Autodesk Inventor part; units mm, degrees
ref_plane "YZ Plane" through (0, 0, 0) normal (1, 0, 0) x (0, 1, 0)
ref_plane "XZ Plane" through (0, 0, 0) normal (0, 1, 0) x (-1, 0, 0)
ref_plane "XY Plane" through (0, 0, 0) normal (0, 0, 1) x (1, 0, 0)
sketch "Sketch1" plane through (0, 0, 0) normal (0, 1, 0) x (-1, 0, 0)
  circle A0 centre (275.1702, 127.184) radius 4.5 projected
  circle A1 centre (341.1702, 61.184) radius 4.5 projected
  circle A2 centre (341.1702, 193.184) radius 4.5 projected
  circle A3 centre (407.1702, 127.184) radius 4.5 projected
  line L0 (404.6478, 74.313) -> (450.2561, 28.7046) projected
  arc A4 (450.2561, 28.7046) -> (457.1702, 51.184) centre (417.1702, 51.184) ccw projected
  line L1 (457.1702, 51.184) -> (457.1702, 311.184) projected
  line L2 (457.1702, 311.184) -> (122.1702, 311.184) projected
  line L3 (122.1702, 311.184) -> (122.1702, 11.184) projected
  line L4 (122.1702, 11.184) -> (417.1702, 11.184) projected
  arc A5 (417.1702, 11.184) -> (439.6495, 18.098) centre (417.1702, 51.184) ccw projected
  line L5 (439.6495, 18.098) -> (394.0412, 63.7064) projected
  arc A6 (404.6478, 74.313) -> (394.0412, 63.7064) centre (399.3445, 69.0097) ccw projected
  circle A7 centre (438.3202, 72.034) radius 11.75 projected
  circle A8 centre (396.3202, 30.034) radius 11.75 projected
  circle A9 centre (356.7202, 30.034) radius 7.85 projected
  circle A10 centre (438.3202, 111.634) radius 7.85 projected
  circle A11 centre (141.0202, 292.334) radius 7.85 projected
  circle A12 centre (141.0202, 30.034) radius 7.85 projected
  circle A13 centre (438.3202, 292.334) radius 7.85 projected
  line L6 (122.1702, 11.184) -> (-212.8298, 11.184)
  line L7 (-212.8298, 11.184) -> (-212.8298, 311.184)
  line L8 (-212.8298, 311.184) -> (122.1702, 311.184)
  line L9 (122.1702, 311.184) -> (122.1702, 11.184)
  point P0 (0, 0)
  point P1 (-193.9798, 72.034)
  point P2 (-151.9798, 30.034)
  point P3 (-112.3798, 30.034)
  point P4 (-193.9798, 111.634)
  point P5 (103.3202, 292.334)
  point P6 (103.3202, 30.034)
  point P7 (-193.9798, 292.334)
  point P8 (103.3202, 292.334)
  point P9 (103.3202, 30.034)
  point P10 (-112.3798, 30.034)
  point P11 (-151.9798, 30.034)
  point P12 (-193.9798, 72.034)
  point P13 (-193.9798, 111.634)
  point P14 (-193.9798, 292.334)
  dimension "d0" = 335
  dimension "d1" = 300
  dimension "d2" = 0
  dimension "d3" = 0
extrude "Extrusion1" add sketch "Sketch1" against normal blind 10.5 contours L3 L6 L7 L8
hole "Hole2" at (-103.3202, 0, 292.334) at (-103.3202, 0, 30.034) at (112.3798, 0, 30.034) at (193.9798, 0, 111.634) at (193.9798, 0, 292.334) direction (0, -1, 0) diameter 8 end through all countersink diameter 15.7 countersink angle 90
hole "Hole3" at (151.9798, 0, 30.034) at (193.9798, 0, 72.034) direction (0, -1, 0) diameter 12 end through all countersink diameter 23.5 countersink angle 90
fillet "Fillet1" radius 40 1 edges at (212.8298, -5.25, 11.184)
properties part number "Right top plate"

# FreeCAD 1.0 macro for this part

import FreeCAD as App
import Part
import Sketcher
from FreeCAD import Vector
Q = App.Units.Quantity


def edges_at(feature, points):
    """Names of the edges that pass closest to the given points."""
    edges = feature.Shape.Edges
    near = lambda p: min(range(len(edges)), key=lambda i: edges[i].distToShape(Part.Vertex(*p))[0])
    return sorted({f"Edge{near(p) + 1}" for p in points})

doc = App.newDocument("Part")
body = doc.addObject("PartDesign::Body", "Body")

# Sketch on XZ plane
sketch1 = doc.addObject("Sketcher::SketchObject", "Sketch")
body.addObject(sketch1)
sketch1.AttachmentSupport = (doc.XZ_Plane, [""])
sketch1.MapMode = "FlatFace"
sketch1.addGeometry(Part.LineSegment(Vector(-122.1702, 11.184, 0), Vector(-122.1702, 311.184, 0)), False)
sketch1.addGeometry(Part.LineSegment(Vector(-122.1702, 311.184, 0), Vector(212.8298, 311.184, 0)), False)
sketch1.addGeometry(Part.LineSegment(Vector(212.8298, 311.184, 0), Vector(212.8298, 11.184, 0)), False)
sketch1.addGeometry(Part.LineSegment(Vector(212.8298, 11.184, 0), Vector(-122.1702, 11.184, 0)), False)
sketch1.addConstraint(Sketcher.Constraint("Coincident", 0, 2, 1, 1))
sketch1.addConstraint(Sketcher.Constraint("Coincident", 1, 2, 2, 1))
sketch1.addConstraint(Sketcher.Constraint("Coincident", 2, 2, 3, 1))
sketch1.addConstraint(Sketcher.Constraint("Coincident", 3, 2, 0, 1))
sketch1.addConstraint(Sketcher.Constraint("Vertical", 0))
sketch1.addConstraint(Sketcher.Constraint("Horizontal", 1))
sketch1.addConstraint(Sketcher.Constraint("Vertical", 2))
sketch1.addConstraint(Sketcher.Constraint("Horizontal", 3))
sketch1.addConstraint(Sketcher.Constraint("DistanceX", 1, 1, 1, 2, Q("335 mm")))
sketch1.addConstraint(Sketcher.Constraint("DistanceY", 0, 1, 0, 2, Q("300 mm")))
sketch1.addConstraint(Sketcher.Constraint("DistanceY", -1, 1, 0, 2, Q("311.184 mm")))
sketch1.addConstraint(Sketcher.Constraint("DistanceX", 0, 2, -1, 1, Q("122.1702 mm")))
pad1 = doc.addObject("PartDesign::Pad", "Pad")
body.addObject(pad1)
pad1.Profile = sketch1
pad1.Length = 10.5

# Sketch on XZ plane
sketch2 = doc.addObject("Sketcher::SketchObject", "Sketch001")
body.addObject(sketch2)
sketch2.AttachmentSupport = (doc.XZ_Plane, [""])
sketch2.MapMode = "FlatFace"
sketch2.addGeometry(Part.Circle(Vector(-103.3202, 292.334, 0), Vector(0, 0, 1), 4), False)
sketch2.addGeometry(Part.Circle(Vector(-103.3202, 30.034, 0), Vector(0, 0, 1), 4), False)
sketch2.addGeometry(Part.Circle(Vector(112.3798, 30.034, 0), Vector(0, 0, 1), 4), False)
sketch2.addGeometry(Part.Circle(Vector(193.9798, 111.634, 0), Vector(0, 0, 1), 4), False)
sketch2.addGeometry(Part.Circle(Vector(193.9798, 292.334, 0), Vector(0, 0, 1), 4), False)
sketch2.addConstraint(Sketcher.Constraint("Equal", 0, 1))
sketch2.addConstraint(Sketcher.Constraint("Equal", 1, 2))
sketch2.addConstraint(Sketcher.Constraint("Equal", 2, 3))
sketch2.addConstraint(Sketcher.Constraint("Equal", 3, 4))
sketch2.addConstraint(Sketcher.Constraint("Horizontal", 1, 3, 2, 3))
sketch2.addConstraint(Sketcher.Constraint("Horizontal", 0, 3, 4, 3))
sketch2.addConstraint(Sketcher.Constraint("Vertical", 0, 3, 1, 3))
sketch2.addConstraint(Sketcher.Constraint("Vertical", 3, 3, 4, 3))
sketch2.addConstraint(Sketcher.Constraint("Diameter", 0, Q("8 mm")))
sketch2.addConstraint(Sketcher.Constraint("DistanceY", 1, 3, 0, 3, Q("262.3 mm")))
sketch2.addConstraint(Sketcher.Constraint("DistanceX", 1, 3, 2, 3, Q("215.7 mm")))
sketch2.addConstraint(Sketcher.Constraint("DistanceX", 2, 3, 3, 3, Q("81.6 mm")))
sketch2.addConstraint(Sketcher.Constraint("DistanceY", 2, 3, 3, 3, Q("81.6 mm")))
sketch2.addConstraint(Sketcher.Constraint("DistanceY", -1, 1, 0, 3, Q("292.334 mm")))
sketch2.addConstraint(Sketcher.Constraint("DistanceX", 0, 3, -1, 1, Q("103.3202 mm")))
doc.recompute()
hole = doc.addObject("PartDesign::Hole", "Hole")
body.addObject(hole)
hole.Profile = sketch2
hole.ThreadType = "None"
hole.Diameter = 8
hole.DepthType = "ThroughAll"
hole.HoleCutType = "Countersink"
hole.HoleCutDiameter = 15.7
hole.HoleCutCountersinkAngle = 90
hole.Reversed = True

# Sketch on XZ plane
sketch3 = doc.addObject("Sketcher::SketchObject", "Sketch002")
body.addObject(sketch3)
sketch3.AttachmentSupport = (doc.XZ_Plane, [""])
sketch3.MapMode = "FlatFace"
sketch3.addGeometry(Part.Circle(Vector(151.9798, 30.034, 0), Vector(0, 0, 1), 6), False)
sketch3.addGeometry(Part.Circle(Vector(193.9798, 72.034, 0), Vector(0, 0, 1), 6), False)
sketch3.addConstraint(Sketcher.Constraint("Equal", 0, 1))
sketch3.addConstraint(Sketcher.Constraint("Diameter", 0, Q("12 mm")))
sketch3.addConstraint(Sketcher.Constraint("DistanceX", 0, 3, 1, 3, Q("42 mm")))
sketch3.addConstraint(Sketcher.Constraint("DistanceY", 0, 3, 1, 3, Q("42 mm")))
sketch3.addConstraint(Sketcher.Constraint("DistanceY", -1, 1, 0, 3, Q("30.034 mm")))
sketch3.addConstraint(Sketcher.Constraint("DistanceX", -1, 1, 0, 3, Q("151.9798 mm")))
doc.recompute()
hole2 = doc.addObject("PartDesign::Hole", "Hole001")
body.addObject(hole2)
hole2.Profile = sketch3
hole2.ThreadType = "None"
hole2.Diameter = 12
hole2.DepthType = "ThroughAll"
hole2.HoleCutType = "Countersink"
hole2.HoleCutDiameter = 23.5
hole2.HoleCutCountersinkAngle = 90
hole2.Reversed = True
doc.recompute()

fillet = doc.addObject("PartDesign::Fillet", "Fillet")
body.addObject(fillet)
fillet.Base = (hole2, edges_at(hole2, [(212.83, -5.25, 11.184)]))
fillet.Radius = 40

doc.recompute()
